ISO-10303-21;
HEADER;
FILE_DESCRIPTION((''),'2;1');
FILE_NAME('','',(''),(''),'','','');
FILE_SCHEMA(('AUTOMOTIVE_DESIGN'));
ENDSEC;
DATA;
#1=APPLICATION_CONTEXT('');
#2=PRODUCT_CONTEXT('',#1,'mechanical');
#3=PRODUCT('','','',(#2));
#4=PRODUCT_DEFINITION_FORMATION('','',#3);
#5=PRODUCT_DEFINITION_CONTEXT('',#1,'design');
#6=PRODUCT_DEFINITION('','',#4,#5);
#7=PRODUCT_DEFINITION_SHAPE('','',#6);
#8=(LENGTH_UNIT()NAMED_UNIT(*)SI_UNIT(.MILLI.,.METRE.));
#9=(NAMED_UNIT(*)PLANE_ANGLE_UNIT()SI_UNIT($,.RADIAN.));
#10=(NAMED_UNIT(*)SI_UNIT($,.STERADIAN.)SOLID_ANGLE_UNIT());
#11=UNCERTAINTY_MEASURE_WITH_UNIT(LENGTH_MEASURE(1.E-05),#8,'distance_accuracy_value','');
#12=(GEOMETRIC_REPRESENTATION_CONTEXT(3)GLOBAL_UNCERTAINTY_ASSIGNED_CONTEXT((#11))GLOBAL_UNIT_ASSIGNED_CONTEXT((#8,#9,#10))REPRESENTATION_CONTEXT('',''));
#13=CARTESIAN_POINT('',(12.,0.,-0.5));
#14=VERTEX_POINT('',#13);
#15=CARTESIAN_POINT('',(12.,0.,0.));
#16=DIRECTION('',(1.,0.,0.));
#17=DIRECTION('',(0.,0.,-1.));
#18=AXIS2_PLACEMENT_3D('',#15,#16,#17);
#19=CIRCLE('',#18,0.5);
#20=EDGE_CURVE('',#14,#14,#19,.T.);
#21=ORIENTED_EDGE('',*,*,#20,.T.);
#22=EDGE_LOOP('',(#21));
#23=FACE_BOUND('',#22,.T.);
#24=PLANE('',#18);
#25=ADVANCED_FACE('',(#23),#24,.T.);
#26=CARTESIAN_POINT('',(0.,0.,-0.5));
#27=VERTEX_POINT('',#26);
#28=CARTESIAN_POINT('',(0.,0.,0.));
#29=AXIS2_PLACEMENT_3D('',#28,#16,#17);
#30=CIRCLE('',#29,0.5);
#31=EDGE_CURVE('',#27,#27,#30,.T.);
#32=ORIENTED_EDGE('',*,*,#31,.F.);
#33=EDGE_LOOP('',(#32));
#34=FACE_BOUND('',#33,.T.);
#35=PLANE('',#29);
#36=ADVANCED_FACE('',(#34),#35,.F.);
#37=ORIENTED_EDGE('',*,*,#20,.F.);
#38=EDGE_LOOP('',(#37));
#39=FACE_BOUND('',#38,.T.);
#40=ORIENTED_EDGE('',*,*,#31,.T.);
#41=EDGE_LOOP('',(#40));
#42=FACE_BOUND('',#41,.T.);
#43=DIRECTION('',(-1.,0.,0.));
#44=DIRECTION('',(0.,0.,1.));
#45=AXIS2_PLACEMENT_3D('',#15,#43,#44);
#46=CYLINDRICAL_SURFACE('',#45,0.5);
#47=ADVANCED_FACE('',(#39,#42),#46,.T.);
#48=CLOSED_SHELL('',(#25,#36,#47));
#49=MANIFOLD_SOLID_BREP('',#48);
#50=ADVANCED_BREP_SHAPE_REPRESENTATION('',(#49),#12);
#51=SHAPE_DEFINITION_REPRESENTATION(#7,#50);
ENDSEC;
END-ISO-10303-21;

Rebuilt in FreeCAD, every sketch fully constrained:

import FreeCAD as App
import Part
import Sketcher

V = App.Vector
Q = App.Units.Quantity

doc = App.newDocument("Part")
params = doc.addObject("Spreadsheet::Sheet", "Params")
for row, (alias, value) in enumerate([
    ("sketch1_diameter", "1 mm"),
    ("pad1_length", "12 mm"),
], start=1):
    params.set(f"A{row}", alias)
    params.set(f"B{row}", "=" + value)
    params.setAlias(f"B{row}", alias)

body = doc.addObject("PartDesign::Body", "Body")

# Sketch on YZ plane
sketch1 = body.newObject("Sketcher::SketchObject", "Sketch")
sketch1.AttachmentSupport = (doc.getObject("YZ_Plane"), [""])
sketch1.MapMode = "FlatFace"
sketch1.addGeometry(Part.Circle(V(0, 0, 0), V(0, 0, 1), 0.5), False)
sketch1.addConstraint([
    Sketcher.Constraint("Coincident", 0, 3, -1, 1),
    Sketcher.Constraint("Diameter", 0, Q("1 mm")),
])
sketch1.setExpression("Constraints[1]", "Params.sketch1_diameter")
pad1 = body.newObject("PartDesign::Pad", "Pad")
pad1.Profile = sketch1
pad1.setExpression("Length", "Params.pad1_length")

doc.recompute()
